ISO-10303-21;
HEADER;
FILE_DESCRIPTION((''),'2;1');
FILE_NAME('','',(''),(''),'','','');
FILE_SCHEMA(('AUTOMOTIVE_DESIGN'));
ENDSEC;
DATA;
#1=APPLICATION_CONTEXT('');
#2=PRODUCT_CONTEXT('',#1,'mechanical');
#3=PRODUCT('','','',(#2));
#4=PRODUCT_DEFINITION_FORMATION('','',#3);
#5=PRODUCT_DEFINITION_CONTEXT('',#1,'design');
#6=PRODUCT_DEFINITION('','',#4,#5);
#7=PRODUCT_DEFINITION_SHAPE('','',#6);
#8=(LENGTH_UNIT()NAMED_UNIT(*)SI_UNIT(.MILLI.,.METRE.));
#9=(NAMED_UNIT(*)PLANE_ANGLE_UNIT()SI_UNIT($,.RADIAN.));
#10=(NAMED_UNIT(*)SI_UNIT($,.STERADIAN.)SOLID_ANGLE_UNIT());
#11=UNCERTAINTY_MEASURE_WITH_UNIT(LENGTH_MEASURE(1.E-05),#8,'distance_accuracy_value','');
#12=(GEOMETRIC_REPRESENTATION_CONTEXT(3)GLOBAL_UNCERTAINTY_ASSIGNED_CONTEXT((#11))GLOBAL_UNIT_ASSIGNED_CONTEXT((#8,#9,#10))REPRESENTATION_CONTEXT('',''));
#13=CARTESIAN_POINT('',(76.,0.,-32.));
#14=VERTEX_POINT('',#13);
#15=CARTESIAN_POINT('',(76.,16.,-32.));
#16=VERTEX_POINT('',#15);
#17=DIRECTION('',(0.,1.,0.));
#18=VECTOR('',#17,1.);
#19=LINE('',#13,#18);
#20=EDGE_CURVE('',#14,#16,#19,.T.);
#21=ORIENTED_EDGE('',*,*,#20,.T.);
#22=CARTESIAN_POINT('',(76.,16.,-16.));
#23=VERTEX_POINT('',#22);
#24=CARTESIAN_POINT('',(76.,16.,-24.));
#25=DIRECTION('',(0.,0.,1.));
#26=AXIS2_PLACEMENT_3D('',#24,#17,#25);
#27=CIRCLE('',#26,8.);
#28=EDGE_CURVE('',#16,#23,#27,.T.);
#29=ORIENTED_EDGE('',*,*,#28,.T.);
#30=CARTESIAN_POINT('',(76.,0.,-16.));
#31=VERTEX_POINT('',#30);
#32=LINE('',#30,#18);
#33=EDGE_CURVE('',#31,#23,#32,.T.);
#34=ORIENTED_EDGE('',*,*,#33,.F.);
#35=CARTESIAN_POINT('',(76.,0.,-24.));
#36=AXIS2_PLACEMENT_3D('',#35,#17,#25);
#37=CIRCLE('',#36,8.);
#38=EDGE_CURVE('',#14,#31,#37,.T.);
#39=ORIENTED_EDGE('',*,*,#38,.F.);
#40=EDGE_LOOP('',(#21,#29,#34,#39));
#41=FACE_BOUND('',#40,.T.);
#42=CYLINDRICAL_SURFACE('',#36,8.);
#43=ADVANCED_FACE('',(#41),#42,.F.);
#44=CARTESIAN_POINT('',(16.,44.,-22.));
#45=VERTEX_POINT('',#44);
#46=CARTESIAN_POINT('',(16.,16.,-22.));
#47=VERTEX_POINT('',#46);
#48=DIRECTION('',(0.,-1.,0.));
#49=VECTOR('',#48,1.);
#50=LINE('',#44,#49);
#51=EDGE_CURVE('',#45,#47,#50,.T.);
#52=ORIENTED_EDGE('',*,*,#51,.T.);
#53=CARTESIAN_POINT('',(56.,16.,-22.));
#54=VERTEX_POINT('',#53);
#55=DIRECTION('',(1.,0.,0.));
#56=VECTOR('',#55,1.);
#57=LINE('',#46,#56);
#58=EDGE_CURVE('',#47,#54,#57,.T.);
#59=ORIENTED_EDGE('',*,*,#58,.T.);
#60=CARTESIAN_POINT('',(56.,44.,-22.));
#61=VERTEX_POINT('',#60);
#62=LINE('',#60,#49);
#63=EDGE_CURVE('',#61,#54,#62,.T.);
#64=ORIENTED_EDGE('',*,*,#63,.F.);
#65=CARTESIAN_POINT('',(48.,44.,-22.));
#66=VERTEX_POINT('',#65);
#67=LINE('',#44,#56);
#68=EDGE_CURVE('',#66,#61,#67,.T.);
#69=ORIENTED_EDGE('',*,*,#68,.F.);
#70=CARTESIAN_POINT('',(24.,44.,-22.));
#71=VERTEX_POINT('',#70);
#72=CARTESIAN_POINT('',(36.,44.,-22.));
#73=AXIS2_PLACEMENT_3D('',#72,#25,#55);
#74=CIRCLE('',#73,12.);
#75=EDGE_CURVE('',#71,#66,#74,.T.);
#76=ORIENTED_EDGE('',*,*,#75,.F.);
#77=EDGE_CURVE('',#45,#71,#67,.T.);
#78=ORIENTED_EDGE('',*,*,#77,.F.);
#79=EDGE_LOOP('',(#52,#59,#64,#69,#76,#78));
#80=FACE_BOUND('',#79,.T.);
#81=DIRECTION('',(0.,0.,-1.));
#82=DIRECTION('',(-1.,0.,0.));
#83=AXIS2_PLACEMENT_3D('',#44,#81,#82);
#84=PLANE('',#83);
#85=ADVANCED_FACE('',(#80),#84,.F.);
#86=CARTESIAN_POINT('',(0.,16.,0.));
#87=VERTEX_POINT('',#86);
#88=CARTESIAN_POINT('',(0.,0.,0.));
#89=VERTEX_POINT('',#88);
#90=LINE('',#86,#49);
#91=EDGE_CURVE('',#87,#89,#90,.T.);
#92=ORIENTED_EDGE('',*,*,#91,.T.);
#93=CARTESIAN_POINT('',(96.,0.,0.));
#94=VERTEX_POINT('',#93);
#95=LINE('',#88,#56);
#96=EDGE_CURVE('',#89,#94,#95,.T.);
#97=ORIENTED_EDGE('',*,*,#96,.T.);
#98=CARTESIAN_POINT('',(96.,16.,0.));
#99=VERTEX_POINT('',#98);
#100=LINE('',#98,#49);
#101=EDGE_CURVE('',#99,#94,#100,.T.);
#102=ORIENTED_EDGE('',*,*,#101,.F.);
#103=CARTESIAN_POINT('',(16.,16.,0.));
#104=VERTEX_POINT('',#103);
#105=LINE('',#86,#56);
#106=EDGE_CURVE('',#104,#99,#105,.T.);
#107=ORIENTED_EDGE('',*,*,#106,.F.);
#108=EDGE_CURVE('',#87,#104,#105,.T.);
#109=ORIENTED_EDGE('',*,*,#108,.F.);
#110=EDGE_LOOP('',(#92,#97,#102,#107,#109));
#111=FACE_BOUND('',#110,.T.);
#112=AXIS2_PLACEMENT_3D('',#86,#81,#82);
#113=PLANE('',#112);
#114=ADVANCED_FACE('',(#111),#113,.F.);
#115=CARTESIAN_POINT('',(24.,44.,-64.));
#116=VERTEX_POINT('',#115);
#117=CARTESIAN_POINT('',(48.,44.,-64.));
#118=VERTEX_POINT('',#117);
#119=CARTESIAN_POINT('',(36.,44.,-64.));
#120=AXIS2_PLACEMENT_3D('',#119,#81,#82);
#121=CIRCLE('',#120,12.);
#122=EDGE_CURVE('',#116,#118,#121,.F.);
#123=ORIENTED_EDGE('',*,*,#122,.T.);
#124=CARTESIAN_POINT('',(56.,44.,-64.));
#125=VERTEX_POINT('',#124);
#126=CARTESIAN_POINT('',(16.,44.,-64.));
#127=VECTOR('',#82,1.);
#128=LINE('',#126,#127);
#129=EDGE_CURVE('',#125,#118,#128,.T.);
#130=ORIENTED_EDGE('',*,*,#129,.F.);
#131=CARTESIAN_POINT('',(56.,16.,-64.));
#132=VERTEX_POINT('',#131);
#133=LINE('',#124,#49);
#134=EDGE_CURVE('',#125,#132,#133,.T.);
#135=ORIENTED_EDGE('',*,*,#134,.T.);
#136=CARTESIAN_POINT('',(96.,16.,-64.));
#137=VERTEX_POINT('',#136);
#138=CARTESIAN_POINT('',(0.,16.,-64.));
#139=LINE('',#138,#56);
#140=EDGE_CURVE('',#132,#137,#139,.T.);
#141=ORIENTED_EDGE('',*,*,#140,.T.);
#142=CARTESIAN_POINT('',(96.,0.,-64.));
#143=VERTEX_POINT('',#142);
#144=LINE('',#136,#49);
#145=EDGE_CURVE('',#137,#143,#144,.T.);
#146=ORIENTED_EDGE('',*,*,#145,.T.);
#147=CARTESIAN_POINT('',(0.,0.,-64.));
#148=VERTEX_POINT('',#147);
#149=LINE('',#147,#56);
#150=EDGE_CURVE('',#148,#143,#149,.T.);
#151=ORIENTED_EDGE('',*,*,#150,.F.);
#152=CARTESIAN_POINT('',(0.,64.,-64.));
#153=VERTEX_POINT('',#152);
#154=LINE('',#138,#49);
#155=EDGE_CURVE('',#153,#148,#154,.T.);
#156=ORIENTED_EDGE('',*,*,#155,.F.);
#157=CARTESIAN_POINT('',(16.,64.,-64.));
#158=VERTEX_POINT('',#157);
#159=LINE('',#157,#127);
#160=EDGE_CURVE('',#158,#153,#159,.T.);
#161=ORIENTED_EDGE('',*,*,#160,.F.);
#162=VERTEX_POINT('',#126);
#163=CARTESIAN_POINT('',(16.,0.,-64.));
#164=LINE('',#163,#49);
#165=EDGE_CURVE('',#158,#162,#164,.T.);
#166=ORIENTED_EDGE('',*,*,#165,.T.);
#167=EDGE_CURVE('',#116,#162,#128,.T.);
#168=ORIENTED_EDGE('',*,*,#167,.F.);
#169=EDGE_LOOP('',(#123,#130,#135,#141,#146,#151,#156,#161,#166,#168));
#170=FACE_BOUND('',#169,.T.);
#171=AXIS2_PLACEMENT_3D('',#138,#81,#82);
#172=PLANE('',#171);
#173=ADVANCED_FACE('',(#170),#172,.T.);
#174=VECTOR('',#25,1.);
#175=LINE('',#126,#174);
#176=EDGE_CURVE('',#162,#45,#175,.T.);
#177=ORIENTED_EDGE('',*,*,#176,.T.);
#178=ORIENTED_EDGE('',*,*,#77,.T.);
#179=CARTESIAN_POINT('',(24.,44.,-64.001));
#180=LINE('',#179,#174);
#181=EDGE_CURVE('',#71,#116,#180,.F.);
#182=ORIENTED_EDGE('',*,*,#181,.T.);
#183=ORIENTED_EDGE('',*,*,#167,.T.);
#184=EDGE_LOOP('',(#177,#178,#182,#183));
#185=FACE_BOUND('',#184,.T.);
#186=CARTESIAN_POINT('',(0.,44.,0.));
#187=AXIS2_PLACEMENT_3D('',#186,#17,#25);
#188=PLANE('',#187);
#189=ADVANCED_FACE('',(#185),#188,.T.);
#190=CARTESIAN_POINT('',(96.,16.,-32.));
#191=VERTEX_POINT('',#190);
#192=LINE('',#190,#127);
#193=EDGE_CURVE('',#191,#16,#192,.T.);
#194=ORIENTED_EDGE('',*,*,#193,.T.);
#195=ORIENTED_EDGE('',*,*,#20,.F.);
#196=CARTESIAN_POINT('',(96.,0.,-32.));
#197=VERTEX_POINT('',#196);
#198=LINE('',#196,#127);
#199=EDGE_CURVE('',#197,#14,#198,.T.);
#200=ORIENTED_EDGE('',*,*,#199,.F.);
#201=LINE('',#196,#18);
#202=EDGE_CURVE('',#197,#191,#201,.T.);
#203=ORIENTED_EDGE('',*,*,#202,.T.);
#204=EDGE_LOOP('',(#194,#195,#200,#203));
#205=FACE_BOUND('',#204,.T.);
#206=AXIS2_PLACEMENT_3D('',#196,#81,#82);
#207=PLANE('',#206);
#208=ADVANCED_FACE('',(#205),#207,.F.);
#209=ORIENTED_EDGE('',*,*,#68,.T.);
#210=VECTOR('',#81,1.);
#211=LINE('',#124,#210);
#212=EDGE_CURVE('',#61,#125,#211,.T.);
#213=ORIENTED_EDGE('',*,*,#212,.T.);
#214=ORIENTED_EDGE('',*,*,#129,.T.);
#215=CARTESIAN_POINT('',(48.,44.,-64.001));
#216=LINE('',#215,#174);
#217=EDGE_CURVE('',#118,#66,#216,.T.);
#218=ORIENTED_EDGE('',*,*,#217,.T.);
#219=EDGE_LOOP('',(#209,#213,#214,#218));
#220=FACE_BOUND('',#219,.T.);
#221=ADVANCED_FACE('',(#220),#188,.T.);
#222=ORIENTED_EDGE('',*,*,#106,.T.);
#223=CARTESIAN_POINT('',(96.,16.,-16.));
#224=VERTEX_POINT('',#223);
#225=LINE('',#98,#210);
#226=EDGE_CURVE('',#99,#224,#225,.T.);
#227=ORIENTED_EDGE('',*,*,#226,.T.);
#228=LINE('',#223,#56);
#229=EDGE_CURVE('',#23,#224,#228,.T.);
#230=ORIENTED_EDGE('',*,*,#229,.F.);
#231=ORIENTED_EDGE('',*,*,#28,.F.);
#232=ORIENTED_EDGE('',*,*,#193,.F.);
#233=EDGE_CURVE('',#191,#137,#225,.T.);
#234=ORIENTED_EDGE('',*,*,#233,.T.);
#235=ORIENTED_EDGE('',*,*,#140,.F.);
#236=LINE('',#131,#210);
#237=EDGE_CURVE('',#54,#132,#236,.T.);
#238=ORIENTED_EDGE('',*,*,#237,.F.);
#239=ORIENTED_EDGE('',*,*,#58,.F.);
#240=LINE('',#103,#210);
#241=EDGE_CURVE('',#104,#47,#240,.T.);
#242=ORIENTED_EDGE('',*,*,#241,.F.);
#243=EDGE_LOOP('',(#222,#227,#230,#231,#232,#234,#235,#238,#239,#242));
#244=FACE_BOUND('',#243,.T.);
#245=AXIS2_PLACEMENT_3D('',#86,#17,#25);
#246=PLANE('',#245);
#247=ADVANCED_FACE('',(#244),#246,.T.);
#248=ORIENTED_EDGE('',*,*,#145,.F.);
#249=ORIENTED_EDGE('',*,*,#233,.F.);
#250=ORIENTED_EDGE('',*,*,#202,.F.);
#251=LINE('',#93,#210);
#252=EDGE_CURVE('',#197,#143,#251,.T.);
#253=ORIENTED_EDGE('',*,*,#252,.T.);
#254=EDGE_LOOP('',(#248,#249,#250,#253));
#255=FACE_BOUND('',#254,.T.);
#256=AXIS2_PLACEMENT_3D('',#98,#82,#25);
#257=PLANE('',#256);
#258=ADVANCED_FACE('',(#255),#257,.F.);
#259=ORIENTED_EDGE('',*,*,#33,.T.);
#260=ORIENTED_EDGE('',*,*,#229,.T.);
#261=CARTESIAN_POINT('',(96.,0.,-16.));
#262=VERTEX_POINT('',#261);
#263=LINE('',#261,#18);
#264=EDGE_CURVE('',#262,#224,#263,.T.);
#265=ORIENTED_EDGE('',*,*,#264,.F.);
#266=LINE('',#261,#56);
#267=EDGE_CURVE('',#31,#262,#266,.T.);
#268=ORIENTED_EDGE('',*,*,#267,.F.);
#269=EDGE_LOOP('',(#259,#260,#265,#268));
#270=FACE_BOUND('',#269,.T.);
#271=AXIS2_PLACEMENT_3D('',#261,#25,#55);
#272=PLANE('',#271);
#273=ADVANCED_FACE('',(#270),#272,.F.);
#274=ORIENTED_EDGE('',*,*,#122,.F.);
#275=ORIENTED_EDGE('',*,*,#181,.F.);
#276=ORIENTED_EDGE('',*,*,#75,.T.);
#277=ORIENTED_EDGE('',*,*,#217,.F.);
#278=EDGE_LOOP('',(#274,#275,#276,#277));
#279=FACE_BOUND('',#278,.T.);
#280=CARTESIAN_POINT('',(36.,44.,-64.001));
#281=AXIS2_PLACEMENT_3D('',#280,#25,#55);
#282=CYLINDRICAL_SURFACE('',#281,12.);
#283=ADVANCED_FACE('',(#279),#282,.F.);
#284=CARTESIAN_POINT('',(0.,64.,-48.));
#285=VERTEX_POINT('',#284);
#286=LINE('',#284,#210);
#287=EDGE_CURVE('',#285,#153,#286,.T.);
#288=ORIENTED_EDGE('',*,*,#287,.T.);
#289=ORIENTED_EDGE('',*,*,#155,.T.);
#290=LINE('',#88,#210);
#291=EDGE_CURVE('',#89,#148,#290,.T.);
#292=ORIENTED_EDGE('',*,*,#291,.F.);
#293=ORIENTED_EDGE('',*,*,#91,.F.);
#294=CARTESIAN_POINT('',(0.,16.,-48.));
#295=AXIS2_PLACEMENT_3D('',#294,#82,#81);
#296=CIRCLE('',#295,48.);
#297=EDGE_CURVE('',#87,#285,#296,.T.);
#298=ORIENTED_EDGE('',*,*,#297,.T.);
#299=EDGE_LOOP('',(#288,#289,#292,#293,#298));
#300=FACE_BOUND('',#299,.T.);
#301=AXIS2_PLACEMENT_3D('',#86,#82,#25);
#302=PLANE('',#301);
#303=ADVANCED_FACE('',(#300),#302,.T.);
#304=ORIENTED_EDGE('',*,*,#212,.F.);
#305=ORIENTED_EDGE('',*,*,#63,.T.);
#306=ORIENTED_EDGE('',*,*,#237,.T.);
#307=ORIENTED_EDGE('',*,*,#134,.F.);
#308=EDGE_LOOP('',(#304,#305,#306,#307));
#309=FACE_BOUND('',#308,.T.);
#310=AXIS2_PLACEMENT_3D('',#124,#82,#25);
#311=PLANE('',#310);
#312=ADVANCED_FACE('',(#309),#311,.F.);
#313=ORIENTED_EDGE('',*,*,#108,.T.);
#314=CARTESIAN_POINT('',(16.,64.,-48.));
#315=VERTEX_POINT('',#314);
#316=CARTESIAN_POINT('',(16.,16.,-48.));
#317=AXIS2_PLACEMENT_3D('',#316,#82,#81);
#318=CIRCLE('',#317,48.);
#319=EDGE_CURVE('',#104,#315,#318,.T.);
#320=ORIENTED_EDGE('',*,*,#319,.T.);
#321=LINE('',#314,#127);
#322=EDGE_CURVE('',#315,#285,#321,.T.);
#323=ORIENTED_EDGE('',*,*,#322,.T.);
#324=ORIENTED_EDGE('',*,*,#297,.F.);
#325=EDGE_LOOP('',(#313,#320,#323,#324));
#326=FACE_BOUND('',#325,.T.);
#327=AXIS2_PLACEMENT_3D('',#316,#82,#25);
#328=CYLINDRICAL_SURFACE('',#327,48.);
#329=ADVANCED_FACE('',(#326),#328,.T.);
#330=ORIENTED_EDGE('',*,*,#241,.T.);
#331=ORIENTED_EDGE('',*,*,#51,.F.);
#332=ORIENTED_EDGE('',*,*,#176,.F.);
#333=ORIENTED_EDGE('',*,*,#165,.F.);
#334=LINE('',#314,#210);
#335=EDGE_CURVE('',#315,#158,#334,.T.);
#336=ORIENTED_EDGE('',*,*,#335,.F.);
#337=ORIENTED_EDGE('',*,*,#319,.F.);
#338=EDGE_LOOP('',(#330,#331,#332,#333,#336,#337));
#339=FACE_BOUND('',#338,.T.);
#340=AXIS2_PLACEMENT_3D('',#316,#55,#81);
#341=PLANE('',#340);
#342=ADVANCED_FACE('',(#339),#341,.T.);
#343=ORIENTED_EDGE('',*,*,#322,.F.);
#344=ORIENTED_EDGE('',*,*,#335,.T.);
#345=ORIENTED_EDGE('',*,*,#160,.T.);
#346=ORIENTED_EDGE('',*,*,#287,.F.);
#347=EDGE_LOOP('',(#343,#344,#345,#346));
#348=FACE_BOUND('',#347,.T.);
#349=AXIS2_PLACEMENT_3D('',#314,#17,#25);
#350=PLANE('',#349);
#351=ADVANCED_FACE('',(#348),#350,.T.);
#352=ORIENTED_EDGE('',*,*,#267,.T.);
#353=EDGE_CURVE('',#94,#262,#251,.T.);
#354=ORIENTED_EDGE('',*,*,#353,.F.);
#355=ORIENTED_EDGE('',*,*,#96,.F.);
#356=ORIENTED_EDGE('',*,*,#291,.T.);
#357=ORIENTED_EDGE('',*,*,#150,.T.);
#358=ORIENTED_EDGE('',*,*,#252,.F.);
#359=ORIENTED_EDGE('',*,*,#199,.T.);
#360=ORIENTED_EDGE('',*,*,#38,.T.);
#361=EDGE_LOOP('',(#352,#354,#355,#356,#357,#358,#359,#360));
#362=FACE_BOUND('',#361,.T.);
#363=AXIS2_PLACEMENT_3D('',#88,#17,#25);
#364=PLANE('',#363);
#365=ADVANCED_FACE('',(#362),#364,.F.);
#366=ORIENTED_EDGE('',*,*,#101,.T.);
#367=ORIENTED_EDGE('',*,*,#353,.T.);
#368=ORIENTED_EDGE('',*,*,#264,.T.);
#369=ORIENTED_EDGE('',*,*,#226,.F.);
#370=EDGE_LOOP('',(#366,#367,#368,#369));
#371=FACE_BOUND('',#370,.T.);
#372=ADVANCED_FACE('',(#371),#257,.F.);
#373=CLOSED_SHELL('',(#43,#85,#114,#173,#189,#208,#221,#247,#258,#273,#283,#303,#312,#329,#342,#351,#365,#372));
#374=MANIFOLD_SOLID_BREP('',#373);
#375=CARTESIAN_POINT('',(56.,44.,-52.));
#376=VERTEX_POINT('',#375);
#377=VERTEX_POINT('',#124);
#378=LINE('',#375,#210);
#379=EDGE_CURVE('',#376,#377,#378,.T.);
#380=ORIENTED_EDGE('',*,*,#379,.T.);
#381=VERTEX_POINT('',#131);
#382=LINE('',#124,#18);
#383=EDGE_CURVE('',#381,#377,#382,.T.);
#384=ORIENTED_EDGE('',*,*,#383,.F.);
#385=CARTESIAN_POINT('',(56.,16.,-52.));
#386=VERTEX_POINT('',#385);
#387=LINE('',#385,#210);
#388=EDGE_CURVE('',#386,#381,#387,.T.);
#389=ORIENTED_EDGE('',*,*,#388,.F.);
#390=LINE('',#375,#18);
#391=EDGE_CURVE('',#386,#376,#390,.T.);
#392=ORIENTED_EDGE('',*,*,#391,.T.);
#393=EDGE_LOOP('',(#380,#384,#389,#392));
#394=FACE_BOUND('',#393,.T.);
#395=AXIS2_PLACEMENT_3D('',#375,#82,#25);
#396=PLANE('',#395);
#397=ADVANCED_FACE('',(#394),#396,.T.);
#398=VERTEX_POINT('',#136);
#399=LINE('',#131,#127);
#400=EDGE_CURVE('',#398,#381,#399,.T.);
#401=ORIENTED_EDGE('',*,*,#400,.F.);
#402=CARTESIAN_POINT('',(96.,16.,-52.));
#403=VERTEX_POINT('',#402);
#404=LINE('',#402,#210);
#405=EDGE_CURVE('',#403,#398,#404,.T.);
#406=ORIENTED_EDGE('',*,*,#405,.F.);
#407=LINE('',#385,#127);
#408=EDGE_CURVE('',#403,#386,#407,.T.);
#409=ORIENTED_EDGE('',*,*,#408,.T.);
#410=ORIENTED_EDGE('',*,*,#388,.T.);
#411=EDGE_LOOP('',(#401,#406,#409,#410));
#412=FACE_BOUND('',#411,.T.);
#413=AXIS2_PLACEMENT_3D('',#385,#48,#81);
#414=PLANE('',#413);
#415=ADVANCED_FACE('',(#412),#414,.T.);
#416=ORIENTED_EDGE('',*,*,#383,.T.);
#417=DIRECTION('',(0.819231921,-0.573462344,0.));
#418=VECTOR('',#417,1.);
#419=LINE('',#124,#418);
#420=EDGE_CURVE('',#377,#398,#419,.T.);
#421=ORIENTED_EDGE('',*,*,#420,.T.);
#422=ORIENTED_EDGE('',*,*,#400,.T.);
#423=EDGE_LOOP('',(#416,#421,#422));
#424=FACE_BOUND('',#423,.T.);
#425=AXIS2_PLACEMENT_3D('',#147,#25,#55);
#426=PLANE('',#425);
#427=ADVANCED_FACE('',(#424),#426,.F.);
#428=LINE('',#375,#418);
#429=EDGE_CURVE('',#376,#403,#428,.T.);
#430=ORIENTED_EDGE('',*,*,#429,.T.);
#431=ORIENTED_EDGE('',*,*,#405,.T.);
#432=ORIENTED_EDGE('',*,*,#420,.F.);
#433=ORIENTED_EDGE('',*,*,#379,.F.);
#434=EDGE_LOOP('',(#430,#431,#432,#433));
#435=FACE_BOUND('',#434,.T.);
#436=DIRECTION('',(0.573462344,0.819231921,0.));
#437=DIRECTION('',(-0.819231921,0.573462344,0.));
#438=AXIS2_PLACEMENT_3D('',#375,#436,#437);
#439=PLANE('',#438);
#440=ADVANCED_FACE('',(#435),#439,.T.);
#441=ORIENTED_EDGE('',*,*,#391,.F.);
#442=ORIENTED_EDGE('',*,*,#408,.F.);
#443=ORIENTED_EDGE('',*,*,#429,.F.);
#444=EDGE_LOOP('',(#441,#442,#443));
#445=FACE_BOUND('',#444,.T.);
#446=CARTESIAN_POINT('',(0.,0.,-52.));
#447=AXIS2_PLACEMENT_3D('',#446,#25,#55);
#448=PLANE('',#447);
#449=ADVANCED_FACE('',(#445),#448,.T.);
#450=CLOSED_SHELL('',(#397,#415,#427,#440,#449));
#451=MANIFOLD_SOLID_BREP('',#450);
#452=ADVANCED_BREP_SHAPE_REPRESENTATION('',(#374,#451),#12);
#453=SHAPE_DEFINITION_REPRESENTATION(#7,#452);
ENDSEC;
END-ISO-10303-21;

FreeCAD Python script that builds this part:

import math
import FreeCAD as App
import Part
import Sketcher
from FreeCAD import Vector


def add_polygon(sketch, points):
    """Adds a closed chain of lines whose ends are joined by coincident constraints."""
    first, n = sketch.GeometryCount, len(points)
    for a, b in zip(points, points[1:] + points[:1]):
        sketch.addGeometry(Part.LineSegment(App.Vector(*a, 0), App.Vector(*b, 0)), False)
    for i in range(n):
        sketch.addConstraint(Sketcher.Constraint("Coincident", first + i, 2, first + (i + 1) % n, 1))

doc = App.newDocument("Part")
body = doc.addObject("PartDesign::Body", "Body")

# Sketch on XZ plane
sketch1 = body.newObject("Sketcher::SketchObject", "Sketch")
sketch1.AttachmentSupport = (doc.getObject("XZ_Plane"), [""])
sketch1.MapMode = "FlatFace"
add_polygon(sketch1, [(0, -64), (0, 0), (96, 0), (96, -64)])  # lines 0-3
sketch1.addConstraint([
    Sketcher.Constraint("Vertical", 0),
    Sketcher.Constraint("Horizontal", 1),
    Sketcher.Constraint("Vertical", 2),
    Sketcher.Constraint("Horizontal", 3),
    Sketcher.Constraint("Coincident", 0, 2, -1, 1),
    Sketcher.Constraint("DistanceX", 1, 1, 1, 2, 96.0),
    Sketcher.Constraint("DistanceY", 0, 1, 0, 2, 64.0),
])
pad1 = body.newObject("PartDesign::Pad", "Pad")
pad1.Profile = sketch1
pad1.Length = 16
pad1.Reversed = True

# Sketch on XZ plane
sketch2 = body.newObject("Sketcher::SketchObject", "Sketch001")
sketch2.AttachmentSupport = (doc.getObject("XZ_Plane"), [""])
sketch2.MapMode = "FlatFace"
sketch2.AttachmentOffset = App.Placement(Vector(0, 0, -16), App.Rotation())
sketch2.addGeometry([
    Part.LineSegment(Vector(76, -16, 0), Vector(96, -16, 0)),
    Part.ArcOfCircle(Part.Circle(Vector(96, -24, 0), Vector(0, 0, 1), 8), math.radians(-90), math.radians(90)),
    Part.LineSegment(Vector(96, -32, 0), Vector(76, -32, 0)),
    Part.ArcOfCircle(Part.Circle(Vector(76, -24, 0), Vector(0, 0, 1), 8), math.radians(90), math.radians(270)),
], False)
sketch2.addConstraint([
    Sketcher.Constraint("Tangent", 0, 2, 1, 2),
    Sketcher.Constraint("Tangent", 1, 1, 2, 1),
    Sketcher.Constraint("Tangent", 2, 2, 3, 2),
    Sketcher.Constraint("Tangent", 3, 1, 0, 1),
    Sketcher.Constraint("Horizontal", 0),
    Sketcher.Constraint("Horizontal", 2),
    Sketcher.Constraint("Radius", 1, 8.0),
    Sketcher.Constraint("DistanceX", 0, 1, 0, 2, 20.0),
    Sketcher.Constraint("DistanceX", -1, 1, 1, 3, 96.0),
    Sketcher.Constraint("DistanceY", 1, 3, -1, 1, 24.0),
])
pocket1 = body.newObject("PartDesign::Pocket", "Pocket")
pocket1.Profile = sketch2
pocket1.Length = 16
pocket1.Reversed = True

# Sketch on YZ plane
sketch3 = body.newObject("Sketcher::SketchObject", "Sketch002")
sketch3.AttachmentSupport = (doc.getObject("YZ_Plane"), [""])
sketch3.MapMode = "FlatFace"
sketch3.addGeometry([
    Part.LineSegment(Vector(0, -64, 0), Vector(0, 0, 0)),  # 0
    Part.LineSegment(Vector(0, 0, 0), Vector(16, 0, 0)),  # 1
    Part.ArcOfCircle(Part.Circle(Vector(16, -48, 0), Vector(0, 0, 1), 48), math.radians(0), math.radians(90)),  # 2
    Part.LineSegment(Vector(64, -48, 0), Vector(64, -64, 0)),  # 3
    Part.LineSegment(Vector(64, -64, 0), Vector(0, -64, 0)),  # 4
], False)
sketch3.addConstraint([
    Sketcher.Constraint("Coincident", 0, 2, 1, 1),
    Sketcher.Constraint("Tangent", 1, 2, 2, 2),
    Sketcher.Constraint("Tangent", 2, 1, 3, 1),
    Sketcher.Constraint("Coincident", 3, 2, 4, 1),
    Sketcher.Constraint("Coincident", 4, 2, 0, 1),
    Sketcher.Constraint("Vertical", 0),
    Sketcher.Constraint("Horizontal", 1),
    Sketcher.Constraint("Vertical", 3),
    Sketcher.Constraint("Horizontal", 4),
    Sketcher.Constraint("Coincident", 0, 2, -1, 1),
    Sketcher.Constraint("Equal", 4, 0),
    Sketcher.Constraint("Radius", 2, 48.0),
    Sketcher.Constraint("DistanceX", 1, 1, 1, 2, 16.0),
])
pad2 = body.newObject("PartDesign::Pad", "Pad001")
pad2.Profile = sketch3
pad2.Length = 16

# Sketch on XZ plane
sketch4 = body.newObject("Sketcher::SketchObject", "Sketch003")
sketch4.AttachmentSupport = (doc.getObject("XZ_Plane"), [""])
sketch4.MapMode = "FlatFace"
sketch4.AttachmentOffset = App.Placement(Vector(0, 0, -16), App.Rotation())
add_polygon(sketch4, [(16, -64), (16, -22), (56, -22), (56, -64)])  # lines 0-3
sketch4.addConstraint([
    Sketcher.Constraint("Vertical", 0),
    Sketcher.Constraint("Horizontal", 1),
    Sketcher.Constraint("Vertical", 2),
    Sketcher.Constraint("Horizontal", 3),
    Sketcher.Constraint("DistanceX", 1, 1, 1, 2, 40.0),
    Sketcher.Constraint("DistanceY", 0, 1, 0, 2, 42.0),
    Sketcher.Constraint("DistanceX", -1, 1, 0, 2, 16.0),
    Sketcher.Constraint("DistanceY", 0, 2, -1, 1, 22.0),
])
pad3 = body.newObject("PartDesign::Pad", "Pad002")
pad3.Profile = sketch4
pad3.Length = 28
pad3.Reversed = True

# Sketch on XY plane
sketch5 = body.newObject("Sketcher::SketchObject", "Sketch004")
sketch5.AttachmentSupport = (doc.getObject("XY_Plane"), [""])
sketch5.MapMode = "FlatFace"
sketch5.AttachmentOffset = App.Placement(Vector(0, 0, -22), App.Rotation())
sketch5.addGeometry(Part.Circle(Vector(36, 44, 0), Vector(0, 0, 1), 12), False)
sketch5.addConstraint([
    Sketcher.Constraint("Diameter", 0, 24.0),
    Sketcher.Constraint("DistanceX", -1, 1, 0, 3, 36.0),
    Sketcher.Constraint("DistanceY", -1, 1, 0, 3, 44.0),
])
pocket2 = body.newObject("PartDesign::Pocket", "Pocket001")
pocket2.Profile = sketch5
pocket2.Type = "UpToFirst"
body2 = doc.addObject("PartDesign::Body", "Body001")

# Sketch on XY plane
sketch6 = body2.newObject("Sketcher::SketchObject", "Sketch005")
sketch6.AttachmentSupport = (doc.getObject("XY_Plane001"), [""])
sketch6.MapMode = "FlatFace"
sketch6.AttachmentOffset = App.Placement(Vector(0, 0, -64), App.Rotation())
add_polygon(sketch6, [(56, 44), (96, 16), (56, 16)])  # lines 0-2
sketch6.addConstraint([
    Sketcher.Constraint("Horizontal", 1),
    Sketcher.Constraint("Vertical", 2),
    Sketcher.Constraint("DistanceX", 1, 2, 1, 1, 40.0),
    Sketcher.Constraint("DistanceY", 2, 1, 2, 2, 28.0),
    Sketcher.Constraint("DistanceX", -1, 1, 0, 2, 96.0),
    Sketcher.Constraint("DistanceY", -1, 1, 0, 2, 16.0),
])
pad4 = body2.newObject("PartDesign::Pad", "Pad003")
pad4.Profile = sketch6
pad4.Length = 12

doc.recompute()
